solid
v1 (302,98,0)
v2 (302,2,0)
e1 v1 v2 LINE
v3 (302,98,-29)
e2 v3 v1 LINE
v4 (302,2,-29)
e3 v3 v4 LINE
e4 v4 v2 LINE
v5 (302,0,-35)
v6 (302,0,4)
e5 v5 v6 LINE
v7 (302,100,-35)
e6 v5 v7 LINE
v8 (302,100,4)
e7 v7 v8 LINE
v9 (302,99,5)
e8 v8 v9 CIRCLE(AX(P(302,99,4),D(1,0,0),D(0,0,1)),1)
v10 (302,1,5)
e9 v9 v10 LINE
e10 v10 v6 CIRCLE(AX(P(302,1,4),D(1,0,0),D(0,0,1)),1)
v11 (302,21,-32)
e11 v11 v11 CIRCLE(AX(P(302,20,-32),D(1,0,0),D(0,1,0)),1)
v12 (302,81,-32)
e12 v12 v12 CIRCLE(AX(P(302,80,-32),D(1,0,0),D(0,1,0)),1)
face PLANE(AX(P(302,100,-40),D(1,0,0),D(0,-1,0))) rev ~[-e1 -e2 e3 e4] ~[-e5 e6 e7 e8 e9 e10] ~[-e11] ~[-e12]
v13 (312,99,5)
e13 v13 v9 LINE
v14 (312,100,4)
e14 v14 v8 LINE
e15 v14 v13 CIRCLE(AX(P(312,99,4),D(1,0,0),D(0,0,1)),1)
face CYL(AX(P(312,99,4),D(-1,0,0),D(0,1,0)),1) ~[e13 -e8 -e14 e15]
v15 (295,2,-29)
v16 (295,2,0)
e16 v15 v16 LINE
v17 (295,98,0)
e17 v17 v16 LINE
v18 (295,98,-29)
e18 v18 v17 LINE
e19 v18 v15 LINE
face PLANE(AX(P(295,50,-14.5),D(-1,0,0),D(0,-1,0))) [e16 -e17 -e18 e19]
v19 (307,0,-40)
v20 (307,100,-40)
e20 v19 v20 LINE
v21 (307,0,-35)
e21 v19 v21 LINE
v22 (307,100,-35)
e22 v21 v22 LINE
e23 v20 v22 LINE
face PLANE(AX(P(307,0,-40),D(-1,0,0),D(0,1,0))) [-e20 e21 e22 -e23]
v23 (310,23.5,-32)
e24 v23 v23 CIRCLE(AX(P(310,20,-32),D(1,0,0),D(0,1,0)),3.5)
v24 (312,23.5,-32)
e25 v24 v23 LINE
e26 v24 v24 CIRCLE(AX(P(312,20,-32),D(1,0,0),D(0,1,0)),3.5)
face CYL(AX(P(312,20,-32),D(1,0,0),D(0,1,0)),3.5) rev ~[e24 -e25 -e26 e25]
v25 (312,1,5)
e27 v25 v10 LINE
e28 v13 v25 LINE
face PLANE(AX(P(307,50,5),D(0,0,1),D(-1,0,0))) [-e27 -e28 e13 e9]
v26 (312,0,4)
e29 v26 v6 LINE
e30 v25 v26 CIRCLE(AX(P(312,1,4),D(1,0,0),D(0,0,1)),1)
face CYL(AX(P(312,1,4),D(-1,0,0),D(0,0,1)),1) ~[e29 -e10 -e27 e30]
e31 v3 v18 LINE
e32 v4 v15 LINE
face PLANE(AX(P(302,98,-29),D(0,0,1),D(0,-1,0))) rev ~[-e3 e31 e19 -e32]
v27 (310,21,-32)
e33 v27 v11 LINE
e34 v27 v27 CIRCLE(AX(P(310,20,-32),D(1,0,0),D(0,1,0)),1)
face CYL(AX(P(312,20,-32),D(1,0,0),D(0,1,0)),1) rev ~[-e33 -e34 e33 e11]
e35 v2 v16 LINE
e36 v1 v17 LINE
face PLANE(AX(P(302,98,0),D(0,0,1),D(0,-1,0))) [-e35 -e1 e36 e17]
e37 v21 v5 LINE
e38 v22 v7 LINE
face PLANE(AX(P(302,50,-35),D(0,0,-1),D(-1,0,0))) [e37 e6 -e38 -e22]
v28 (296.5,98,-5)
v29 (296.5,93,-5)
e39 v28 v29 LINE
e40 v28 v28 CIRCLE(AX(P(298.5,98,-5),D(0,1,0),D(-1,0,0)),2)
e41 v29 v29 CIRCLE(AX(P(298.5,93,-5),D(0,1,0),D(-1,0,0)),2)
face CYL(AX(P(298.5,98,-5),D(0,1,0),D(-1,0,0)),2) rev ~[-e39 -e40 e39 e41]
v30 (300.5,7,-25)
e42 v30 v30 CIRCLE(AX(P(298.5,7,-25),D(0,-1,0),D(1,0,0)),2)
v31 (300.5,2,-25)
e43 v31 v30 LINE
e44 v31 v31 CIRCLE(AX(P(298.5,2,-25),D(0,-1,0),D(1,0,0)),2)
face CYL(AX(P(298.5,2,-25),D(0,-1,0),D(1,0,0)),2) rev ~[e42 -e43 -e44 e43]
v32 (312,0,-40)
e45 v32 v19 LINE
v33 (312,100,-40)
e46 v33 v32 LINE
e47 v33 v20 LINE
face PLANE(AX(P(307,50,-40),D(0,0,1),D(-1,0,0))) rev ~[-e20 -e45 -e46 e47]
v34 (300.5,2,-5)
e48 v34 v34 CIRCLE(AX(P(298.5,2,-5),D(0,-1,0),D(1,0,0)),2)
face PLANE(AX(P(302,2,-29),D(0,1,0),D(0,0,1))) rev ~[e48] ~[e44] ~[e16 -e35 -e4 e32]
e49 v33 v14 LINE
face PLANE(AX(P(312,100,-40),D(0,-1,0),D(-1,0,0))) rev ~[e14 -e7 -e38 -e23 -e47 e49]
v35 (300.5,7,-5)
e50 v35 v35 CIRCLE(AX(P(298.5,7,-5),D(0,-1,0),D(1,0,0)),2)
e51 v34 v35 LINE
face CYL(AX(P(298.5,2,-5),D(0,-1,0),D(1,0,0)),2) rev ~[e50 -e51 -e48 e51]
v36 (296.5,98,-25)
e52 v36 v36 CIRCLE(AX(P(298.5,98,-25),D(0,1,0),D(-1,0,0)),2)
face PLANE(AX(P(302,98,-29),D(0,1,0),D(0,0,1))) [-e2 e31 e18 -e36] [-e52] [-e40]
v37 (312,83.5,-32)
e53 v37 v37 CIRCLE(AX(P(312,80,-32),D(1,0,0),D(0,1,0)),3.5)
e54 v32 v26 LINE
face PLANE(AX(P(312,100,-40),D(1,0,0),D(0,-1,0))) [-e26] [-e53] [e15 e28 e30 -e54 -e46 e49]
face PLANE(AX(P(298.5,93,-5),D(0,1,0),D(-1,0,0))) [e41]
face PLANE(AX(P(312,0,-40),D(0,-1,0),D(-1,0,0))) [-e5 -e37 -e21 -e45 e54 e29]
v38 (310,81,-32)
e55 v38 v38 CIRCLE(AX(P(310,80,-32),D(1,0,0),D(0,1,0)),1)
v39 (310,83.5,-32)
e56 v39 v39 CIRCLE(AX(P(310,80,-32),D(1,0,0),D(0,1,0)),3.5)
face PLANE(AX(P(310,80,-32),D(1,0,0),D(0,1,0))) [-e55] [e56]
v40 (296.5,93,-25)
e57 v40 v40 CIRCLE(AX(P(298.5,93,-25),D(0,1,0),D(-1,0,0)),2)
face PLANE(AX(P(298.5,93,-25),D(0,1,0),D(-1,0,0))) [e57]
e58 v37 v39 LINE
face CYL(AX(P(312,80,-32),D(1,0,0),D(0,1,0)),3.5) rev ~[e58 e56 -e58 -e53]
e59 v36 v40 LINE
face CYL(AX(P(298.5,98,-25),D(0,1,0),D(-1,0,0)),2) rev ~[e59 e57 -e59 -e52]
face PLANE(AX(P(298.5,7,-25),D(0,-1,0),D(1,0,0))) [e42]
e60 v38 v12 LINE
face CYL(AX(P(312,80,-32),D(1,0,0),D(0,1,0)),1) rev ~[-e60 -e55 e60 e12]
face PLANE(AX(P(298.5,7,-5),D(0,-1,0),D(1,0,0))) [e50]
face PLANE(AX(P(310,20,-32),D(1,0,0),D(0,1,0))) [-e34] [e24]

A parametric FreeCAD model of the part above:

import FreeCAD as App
import Part
import Sketcher


def edges_at(feature, points):
    """Names of the edges that pass closest to the given points."""
    edges = feature.Shape.Edges
    near = lambda p: min(range(len(edges)), key=lambda i: edges[i].distToShape(Part.Vertex(*p))[0])
    return sorted({f"Edge{near(p) + 1}" for p in points})


def add_polygon(sketch, points):
    """Adds a closed chain of lines whose ends are joined by coincident constraints."""
    first, n = sketch.GeometryCount, len(points)
    for a, b in zip(points, points[1:] + points[:1]):
        sketch.addGeometry(Part.LineSegment(App.Vector(*a, 0), App.Vector(*b, 0)), False)
    for i in range(n):
        sketch.addConstraint(Sketcher.Constraint("Coincident", first + i, 2, first + (i + 1) % n, 1))

doc = App.newDocument("Part")
body = doc.addObject("PartDesign::Body", "Body")

# Sketch on XY plane
sketch1 = body.newObject("Sketcher::SketchObject", "Sketch")
sketch1.AttachmentSupport = (doc.getObject("XY_Plane"), [""])
sketch1.MapMode = "FlatFace"
add_polygon(sketch1, [(0, 100), (0, 0), (10, 0), (10, 100)])  # lines 0-3
sketch1.addConstraint([
    Sketcher.Constraint("Vertical", 0),
    Sketcher.Constraint("Horizontal", 1),
    Sketcher.Constraint("Vertical", 2),
    Sketcher.Constraint("Horizontal", 3),
    Sketcher.Constraint("Coincident", 0, 2, -1, 1),
    Sketcher.Constraint("DistanceX", 1, 1, 1, 2, 10.0),
    Sketcher.Constraint("DistanceY", 0, 2, 0, 1, 100.0),
])
pad1 = body.newObject("PartDesign::Pad", "Pad")
pad1.Profile = sketch1
pad1.Length = 45

# Sketch on XY plane
sketch2 = body.newObject("Sketcher::SketchObject", "Sketch001")
sketch2.AttachmentSupport = (doc.getObject("XY_Plane"), [""])
sketch2.MapMode = "FlatFace"
add_polygon(sketch2, [(5, 0), (5, 100), (15, 100), (15, 0)])  # lines 0-3
sketch2.addConstraint([
    Sketcher.Constraint("Vertical", 0),
    Sketcher.Constraint("Horizontal", 1),
    Sketcher.Constraint("Vertical", 2),
    Sketcher.Constraint("Horizontal", 3),
    Sketcher.Constraint("PointOnObject", 2, 2, -1),
    Sketcher.Constraint("DistanceX", 1, 1, 1, 2, 10.0),
    Sketcher.Constraint("DistanceY", 0, 1, 0, 2, 100.0),
    Sketcher.Constraint("DistanceX", -1, 1, 0, 2, 5.0),
])
pocket1 = body.newObject("PartDesign::Pocket", "Pocket")
pocket1.Profile = sketch2
pocket1.Length = 5
pocket1.Reversed = True

# Sketch on YZ plane
sketch3 = body.newObject("Sketcher::SketchObject", "Sketch002")
sketch3.AttachmentSupport = (doc.getObject("YZ_Plane"), [""])
sketch3.MapMode = "FlatFace"
sketch3.AttachmentOffset = App.Placement(App.Vector(0, 0, 10), App.Rotation())
add_polygon(sketch3, [(2, 40), (2, 11), (98, 11), (98, 40)])  # lines 0-3
sketch3.addConstraint([
    Sketcher.Constraint("Vertical", 0),
    Sketcher.Constraint("Horizontal", 1),
    Sketcher.Constraint("Vertical", 2),
    Sketcher.Constraint("Horizontal", 3),
    Sketcher.Constraint("DistanceX", 1, 1, 1, 2, 96.0),
    Sketcher.Constraint("DistanceY", 0, 2, 0, 1, 29.0),
    Sketcher.Constraint("DistanceX", -1, 1, 0, 2, 2.0),
    Sketcher.Constraint("DistanceY", -1, 1, 0, 2, 11.0),
])
pad2 = body.newObject("PartDesign::Pad", "Pad001")
pad2.Profile = sketch3
pad2.Length = 7

# Sketch on YZ plane
sketch4 = body.newObject("Sketcher::SketchObject", "Sketch003")
sketch4.AttachmentSupport = (doc.getObject("YZ_Plane"), [""])
sketch4.MapMode = "FlatFace"
sketch4.addGeometry([
    Part.Circle(App.Vector(20, 8, 0), App.Vector(0, 0, 1), 1),
    Part.Circle(App.Vector(80, 8, 0), App.Vector(0, 0, 1), 1),
], False)
sketch4.addConstraint([
    Sketcher.Constraint("Equal", 0, 1),
    Sketcher.Constraint("Horizontal", 0, 3, 1, 3),
    Sketcher.Constraint("Diameter", 0, 2.0),
    Sketcher.Constraint("DistanceX", -1, 1, 0, 3, 20.0),
    Sketcher.Constraint("DistanceY", -1, 1, 0, 3, 8.0),
    Sketcher.Constraint("DistanceX", -1, 1, 1, 3, 80.0),
])
pocket2 = body.newObject("PartDesign::Pocket", "Pocket001")
pocket2.Profile = sketch4
pocket2.Length = 10
pocket2.Reversed = True

# Sketch on YZ plane
sketch5 = body.newObject("Sketcher::SketchObject", "Sketch004")
sketch5.AttachmentSupport = (doc.getObject("YZ_Plane"), [""])
sketch5.MapMode = "FlatFace"
sketch5.addGeometry([
    Part.Circle(App.Vector(20, 8, 0), App.Vector(0, 0, 1), 3.5),
    Part.Circle(App.Vector(80, 8, 0), App.Vector(0, 0, 1), 3.5),
], False)
sketch5.addConstraint([
    Sketcher.Constraint("Equal", 0, 1),
    Sketcher.Constraint("Horizontal", 0, 3, 1, 3),
    Sketcher.Constraint("Diameter", 0, 7.0),
    Sketcher.Constraint("DistanceX", -1, 1, 0, 3, 20.0),
    Sketcher.Constraint("DistanceY", -1, 1, 0, 3, 8.0),
    Sketcher.Constraint("DistanceX", -1, 1, 1, 3, 80.0),
])
pocket3 = body.newObject("PartDesign::Pocket", "Pocket002")
pocket3.Profile = sketch5
pocket3.Length = 2
pocket3.Reversed = True

# Sketch on XZ plane
sketch6 = body.newObject("Sketcher::SketchObject", "Sketch005")
sketch6.AttachmentSupport = (doc.getObject("XZ_Plane"), [""])
sketch6.MapMode = "FlatFace"
sketch6.AttachmentOffset = App.Placement(App.Vector(0, 0, -2), App.Rotation())
sketch6.addGeometry([
    Part.Circle(App.Vector(13.5, 15, 0), App.Vector(0, 0, 1), 2),
    Part.Circle(App.Vector(13.5, 35, 0), App.Vector(0, 0, 1), 2),
], False)
sketch6.addConstraint([
    Sketcher.Constraint("Equal", 0, 1),
    Sketcher.Constraint("Vertical", 0, 3, 1, 3),
    Sketcher.Constraint("Diameter", 0, 4.0),
    Sketcher.Constraint("DistanceY", -1, 1, 0, 3, 15.0),
    Sketcher.Constraint("DistanceY", -1, 1, 1, 3, 35.0),
    Sketcher.Constraint("DistanceX", -1, 1, 0, 3, 13.5),
])
pocket4 = body.newObject("PartDesign::Pocket", "Pocket003")
pocket4.Profile = sketch6
pocket4.Length = 5

# Sketch on XZ plane
sketch7 = body.newObject("Sketcher::SketchObject", "Sketch006")
sketch7.AttachmentSupport = (doc.getObject("XZ_Plane"), [""])
sketch7.MapMode = "FlatFace"
sketch7.AttachmentOffset = App.Placement(App.Vector(0, 0, -98), App.Rotation())
sketch7.addGeometry([
    Part.Circle(App.Vector(13.5, 15, 0), App.Vector(0, 0, 1), 2),
    Part.Circle(App.Vector(13.5, 35, 0), App.Vector(0, 0, 1), 2),
], False)
sketch7.addConstraint([
    Sketcher.Constraint("Equal", 0, 1),
    Sketcher.Constraint("Vertical", 0, 3, 1, 3),
    Sketcher.Constraint("Diameter", 0, 4.0),
    Sketcher.Constraint("DistanceY", -1, 1, 0, 3, 15.0),
    Sketcher.Constraint("DistanceY", -1, 1, 1, 3, 35.0),
    Sketcher.Constraint("DistanceX", -1, 1, 0, 3, 13.5),
])
pocket5 = body.newObject("PartDesign::Pocket", "Pocket004")
pocket5.Profile = sketch7
pocket5.Length = 5
pocket5.Reversed = True
doc.recompute()

fillet = body.newObject("PartDesign::Fillet", "Fillet")
fillet.Base = (pocket5, edges_at(pocket5, [(5, 0, 45), (5, 100, 45)]))
fillet.Radius = 1
body2 = doc.addObject("PartDesign::Body", "Body001")
doc.recompute()

body.Placement = App.Placement(App.Vector(-10, 0, -40), App.Rotation(App.Vector(0, 0, 1), 0))
boolean = body2.newObject("PartDesign::Boolean", "Boolean")
boolean.Type = "Fuse"
boolean.addObjects([body])
body3 = doc.addObject("PartDesign::Body", "Body002")
doc.recompute()

body2.Placement = App.Placement(App.Vector(302, 100, 0), App.Rotation(App.Vector(0, 0, 1), 180))
boolean2 = body3.newObject("PartDesign::Boolean", "Boolean001")
boolean2.Type = "Fuse"
boolean2.addObjects([body2])

doc.recompute()
